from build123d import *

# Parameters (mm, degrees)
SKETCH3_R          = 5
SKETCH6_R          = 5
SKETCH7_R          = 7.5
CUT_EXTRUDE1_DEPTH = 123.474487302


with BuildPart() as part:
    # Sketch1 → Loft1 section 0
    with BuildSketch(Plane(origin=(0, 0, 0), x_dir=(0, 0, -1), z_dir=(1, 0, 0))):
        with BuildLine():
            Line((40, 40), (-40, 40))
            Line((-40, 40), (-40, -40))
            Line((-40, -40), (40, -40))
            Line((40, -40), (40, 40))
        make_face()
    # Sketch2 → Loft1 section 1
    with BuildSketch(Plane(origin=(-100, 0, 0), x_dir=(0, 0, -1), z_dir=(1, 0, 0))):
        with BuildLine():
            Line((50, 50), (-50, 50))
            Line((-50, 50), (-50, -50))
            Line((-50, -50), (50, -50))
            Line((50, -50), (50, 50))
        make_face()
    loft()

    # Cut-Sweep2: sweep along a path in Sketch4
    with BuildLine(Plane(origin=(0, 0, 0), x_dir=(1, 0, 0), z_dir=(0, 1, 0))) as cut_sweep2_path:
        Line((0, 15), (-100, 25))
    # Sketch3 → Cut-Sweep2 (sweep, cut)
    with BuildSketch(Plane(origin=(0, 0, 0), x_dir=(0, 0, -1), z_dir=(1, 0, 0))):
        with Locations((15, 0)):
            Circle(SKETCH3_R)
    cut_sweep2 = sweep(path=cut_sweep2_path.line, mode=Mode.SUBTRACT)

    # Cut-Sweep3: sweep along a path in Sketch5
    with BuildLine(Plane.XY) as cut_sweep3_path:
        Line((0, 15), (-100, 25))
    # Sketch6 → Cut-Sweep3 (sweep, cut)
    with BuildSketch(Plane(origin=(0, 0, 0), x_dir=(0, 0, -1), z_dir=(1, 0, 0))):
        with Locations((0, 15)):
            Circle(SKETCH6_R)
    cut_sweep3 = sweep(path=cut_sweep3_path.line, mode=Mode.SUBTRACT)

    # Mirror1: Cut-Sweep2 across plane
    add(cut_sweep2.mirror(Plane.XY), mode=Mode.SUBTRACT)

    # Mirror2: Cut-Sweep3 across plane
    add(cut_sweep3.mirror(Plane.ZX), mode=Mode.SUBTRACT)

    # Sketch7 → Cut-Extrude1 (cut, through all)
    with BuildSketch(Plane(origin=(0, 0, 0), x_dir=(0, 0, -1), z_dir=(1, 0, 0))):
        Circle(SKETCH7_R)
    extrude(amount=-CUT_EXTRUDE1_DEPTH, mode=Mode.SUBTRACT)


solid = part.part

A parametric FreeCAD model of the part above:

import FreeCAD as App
import Part
import Sketcher
from FreeCAD import Vector

doc = App.newDocument("Part")
body = doc.addObject("PartDesign::Body", "Body")

# Sketch on YZ plane
sketch1 = doc.addObject("Sketcher::SketchObject", "Sketch")
body.addObject(sketch1)
sketch1.AttachmentSupport = (doc.YZ_Plane, [""])
sketch1.MapMode = "FlatFace"
sketch1.addGeometry(Part.LineSegment(Vector(40, -40, 0), Vector(40, 40, 0)), False)
sketch1.addGeometry(Part.LineSegment(Vector(40, 40, 0), Vector(-40, 40, 0)), False)
sketch1.addGeometry(Part.LineSegment(Vector(-40, 40, 0), Vector(-40, -40, 0)), False)
sketch1.addGeometry(Part.LineSegment(Vector(-40, -40, 0), Vector(40, -40, 0)), False)
sketch1.addConstraint(Sketcher.Constraint("Coincident", 0, 2, 1, 1))
sketch1.addConstraint(Sketcher.Constraint("Coincident", 1, 2, 2, 1))
sketch1.addConstraint(Sketcher.Constraint("Coincident", 2, 2, 3, 1))
sketch1.addConstraint(Sketcher.Constraint("Coincident", 3, 2, 0, 1))
sketch1.addConstraint(Sketcher.Constraint("Vertical", 0))
sketch1.addConstraint(Sketcher.Constraint("Horizontal", 1))
sketch1.addConstraint(Sketcher.Constraint("Vertical", 2))
sketch1.addConstraint(Sketcher.Constraint("Horizontal", 3))
sketch1.addConstraint(Sketcher.Constraint("Symmetric", 0, 2, 2, 2, -1, 1))
sketch1.addConstraint(Sketcher.Constraint("Equal", 3, 0))
sketch1.addConstraint(Sketcher.Constraint("DistanceX", 1, 2, 1, 1, 80.0))

# Sketch on YZ plane
sketch2 = doc.addObject("Sketcher::SketchObject", "Sketch001")
body.addObject(sketch2)
sketch2.AttachmentSupport = (doc.YZ_Plane, [""])
sketch2.MapMode = "FlatFace"
sketch2.AttachmentOffset = App.Placement(Vector(0, 0, -100), App.Rotation())
sketch2.addGeometry(Part.LineSegment(Vector(50, -50, 0), Vector(50, 50, 0)), False)
sketch2.addGeometry(Part.LineSegment(Vector(50, 50, 0), Vector(-50, 50, 0)), False)
sketch2.addGeometry(Part.LineSegment(Vector(-50, 50, 0), Vector(-50, -50, 0)), False)
sketch2.addGeometry(Part.LineSegment(Vector(-50, -50, 0), Vector(50, -50, 0)), False)
sketch2.addConstraint(Sketcher.Constraint("Coincident", 0, 2, 1, 1))
sketch2.addConstraint(Sketcher.Constraint("Coincident", 1, 2, 2, 1))
sketch2.addConstraint(Sketcher.Constraint("Coincident", 2, 2, 3, 1))
sketch2.addConstraint(Sketcher.Constraint("Coincident", 3, 2, 0, 1))
sketch2.addConstraint(Sketcher.Constraint("Vertical", 0))
sketch2.addConstraint(Sketcher.Constraint("Horizontal", 1))
sketch2.addConstraint(Sketcher.Constraint("Vertical", 2))
sketch2.addConstraint(Sketcher.Constraint("Horizontal", 3))
sketch2.addConstraint(Sketcher.Constraint("Symmetric", 0, 2, 2, 2, -1, 1))
sketch2.addConstraint(Sketcher.Constraint("Equal", 3, 0))
sketch2.addConstraint(Sketcher.Constraint("DistanceX", 1, 2, 1, 1, 100.0))

additiveloft = doc.addObject("PartDesign::AdditiveLoft", "AdditiveLoft")
body.addObject(additiveloft)
additiveloft.Profile = sketch1
additiveloft.Sections = [sketch2]

# Sketch on YZ plane
sketch3 = doc.addObject("Sketcher::SketchObject", "Sketch002")
body.addObject(sketch3)
sketch3.AttachmentSupport = (doc.YZ_Plane, [""])
sketch3.MapMode = "FlatFace"
sketch3.addGeometry(Part.Circle(Vector(0, -15, 0), Vector(0, 0, 1), 5), False)
sketch3.addConstraint(Sketcher.Constraint("PointOnObject", 0, 3, -2))
sketch3.addConstraint(Sketcher.Constraint("Diameter", 0, 10.0))
sketch3.addConstraint(Sketcher.Constraint("DistanceY", 0, 3, -1, 1, 15.0))

# Sketch on an angled plane
sketch4 = doc.addObject("Sketcher::SketchObject", "Sketch003")
body.addObject(sketch4)
sketch4.Placement = App.Placement(Vector(1.485149, 0, -14.851485), App.Rotation(Vector(-0.99503719, 0, -0.099503719), Vector(0, 1, 0), Vector(0.099503719, 0, -0.99503719), "ZXY"))
sketch4.addGeometry(Part.LineSegment(Vector(1, 0, 0), Vector(102, 0, 0)), False)
sketch4.addConstraint(Sketcher.Constraint("Horizontal", 0))
sketch4.addConstraint(Sketcher.Constraint("PointOnObject", 0, 1, -1))
sketch4.addConstraint(Sketcher.Constraint("DistanceX", 0, 1, 0, 2, 100.498756))
sketch4.addConstraint(Sketcher.Constraint("DistanceX", -1, 1, 0, 2, 101.991312))
doc.recompute()

subtractivepipe = doc.addObject("PartDesign::SubtractivePipe", "SubtractivePipe")
body.addObject(subtractivepipe)
subtractivepipe.Profile = sketch3
subtractivepipe.Spine = (sketch4, ["Edge1"])

# Sketch on YZ plane
sketch5 = doc.addObject("Sketcher::SketchObject", "Sketch004")
body.addObject(sketch5)
sketch5.AttachmentSupport = (doc.YZ_Plane, [""])
sketch5.MapMode = "FlatFace"
sketch5.addGeometry(Part.Circle(Vector(15, 0, 0), Vector(0, 0, 1), 5), False)
sketch5.addConstraint(Sketcher.Constraint("PointOnObject", 0, 3, -1))
sketch5.addConstraint(Sketcher.Constraint("Diameter", 0, 10.0))
sketch5.addConstraint(Sketcher.Constraint("DistanceX", -1, 1, 0, 3, 15.0))

# Sketch on an angled plane
sketch6 = doc.addObject("Sketcher::SketchObject", "Sketch005")
body.addObject(sketch6)
sketch6.Placement = App.Placement(Vector(1.485149, 14.851485, 0), App.Rotation(Vector(-0.99503719, 0.099503719, 0), Vector(0, 0, 1), Vector(0.099503719, 0.99503719, 0), "ZXY"))
sketch6.addGeometry(Part.LineSegment(Vector(1, 0, 0), Vector(102, 0, 0)), False)
sketch6.addConstraint(Sketcher.Constraint("Horizontal", 0))
sketch6.addConstraint(Sketcher.Constraint("PointOnObject", 0, 1, -1))
sketch6.addConstraint(Sketcher.Constraint("DistanceX", 0, 1, 0, 2, 100.498756))
sketch6.addConstraint(Sketcher.Constraint("DistanceX", -1, 1, 0, 2, 101.991312))
doc.recompute()

subtractivepipe2 = doc.addObject("PartDesign::SubtractivePipe", "SubtractivePipe001")
body.addObject(subtractivepipe2)
subtractivepipe2.Profile = sketch5
subtractivepipe2.Spine = (sketch6, ["Edge1"])
doc.recompute()

mirrored = doc.addObject("PartDesign::Mirrored", "Mirrored")
body.addObject(mirrored)
mirrored.Originals = [subtractivepipe]
mirrored.MirrorPlane = (doc.XY_Plane, [""])
body.Tip = mirrored
doc.recompute()

mirrored2 = doc.addObject("PartDesign::Mirrored", "Mirrored001")
body.addObject(mirrored2)
mirrored2.Originals = [subtractivepipe2]
mirrored2.MirrorPlane = (doc.XZ_Plane, [""])
body.Tip = mirrored2

# Sketch on YZ plane
sketch7 = doc.addObject("Sketcher::SketchObject", "Sketch006")
body.addObject(sketch7)
sketch7.AttachmentSupport = (doc.YZ_Plane, [""])
sketch7.MapMode = "FlatFace"
sketch7.addGeometry(Part.Circle(Vector(0, 0, 0), Vector(0, 0, 1), 8), False)
sketch7.addConstraint(Sketcher.Constraint("Coincident", 0, 3, -1, 1))
sketch7.addConstraint(Sketcher.Constraint("Diameter", 0, 15.0))
pocket1 = doc.addObject("PartDesign::Pocket", "Pocket")
body.addObject(pocket1)
pocket1.Profile = sketch7
pocket1.Type = "ThroughAll"

doc.recompute()
